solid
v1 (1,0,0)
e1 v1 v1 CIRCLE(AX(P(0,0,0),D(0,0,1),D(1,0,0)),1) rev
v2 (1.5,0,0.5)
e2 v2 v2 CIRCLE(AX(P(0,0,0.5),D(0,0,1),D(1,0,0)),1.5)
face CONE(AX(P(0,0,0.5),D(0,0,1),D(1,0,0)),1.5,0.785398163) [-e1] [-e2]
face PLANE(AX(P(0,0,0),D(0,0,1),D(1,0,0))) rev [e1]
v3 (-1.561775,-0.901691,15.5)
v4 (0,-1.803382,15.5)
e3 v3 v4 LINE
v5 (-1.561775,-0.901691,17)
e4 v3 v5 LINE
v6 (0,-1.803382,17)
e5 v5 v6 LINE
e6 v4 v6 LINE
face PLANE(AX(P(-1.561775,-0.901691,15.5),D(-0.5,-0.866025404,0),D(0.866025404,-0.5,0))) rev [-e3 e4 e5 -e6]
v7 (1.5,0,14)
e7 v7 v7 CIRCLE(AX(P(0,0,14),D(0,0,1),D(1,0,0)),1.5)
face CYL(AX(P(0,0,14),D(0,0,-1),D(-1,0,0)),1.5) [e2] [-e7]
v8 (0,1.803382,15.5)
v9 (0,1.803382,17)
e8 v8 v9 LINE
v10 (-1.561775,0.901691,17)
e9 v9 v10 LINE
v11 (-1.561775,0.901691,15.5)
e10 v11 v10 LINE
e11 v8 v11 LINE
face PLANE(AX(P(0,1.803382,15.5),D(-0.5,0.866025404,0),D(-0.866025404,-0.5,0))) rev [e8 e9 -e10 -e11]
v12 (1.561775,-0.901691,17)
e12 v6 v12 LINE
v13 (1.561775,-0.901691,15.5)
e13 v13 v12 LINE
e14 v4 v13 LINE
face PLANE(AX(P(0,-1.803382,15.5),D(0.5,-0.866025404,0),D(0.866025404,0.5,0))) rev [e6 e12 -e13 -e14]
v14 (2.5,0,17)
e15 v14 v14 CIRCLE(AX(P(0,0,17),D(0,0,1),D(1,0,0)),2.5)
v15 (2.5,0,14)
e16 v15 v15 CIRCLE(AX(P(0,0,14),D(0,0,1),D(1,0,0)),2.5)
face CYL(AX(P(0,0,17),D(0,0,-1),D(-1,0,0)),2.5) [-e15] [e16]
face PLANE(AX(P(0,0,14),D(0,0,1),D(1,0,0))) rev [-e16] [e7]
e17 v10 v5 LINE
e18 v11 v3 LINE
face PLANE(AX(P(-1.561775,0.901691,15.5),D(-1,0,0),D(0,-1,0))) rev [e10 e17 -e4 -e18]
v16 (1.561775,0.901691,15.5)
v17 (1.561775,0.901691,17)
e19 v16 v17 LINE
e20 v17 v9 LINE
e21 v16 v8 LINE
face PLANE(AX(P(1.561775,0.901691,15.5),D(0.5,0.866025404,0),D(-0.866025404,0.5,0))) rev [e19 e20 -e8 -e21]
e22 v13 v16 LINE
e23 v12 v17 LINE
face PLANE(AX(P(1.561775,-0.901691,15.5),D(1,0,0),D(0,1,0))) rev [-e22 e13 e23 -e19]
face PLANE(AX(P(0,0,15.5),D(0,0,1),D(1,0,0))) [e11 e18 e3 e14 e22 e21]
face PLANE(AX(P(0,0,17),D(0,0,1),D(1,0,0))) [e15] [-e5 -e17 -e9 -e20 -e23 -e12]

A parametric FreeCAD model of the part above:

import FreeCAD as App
import Part
import Sketcher
from FreeCAD import Vector
Q = App.Units.Quantity


def edges_at(feature, points):
    """Names of the edges that pass closest to the given points."""
    edges = feature.Shape.Edges
    near = lambda p: min(range(len(edges)), key=lambda i: edges[i].distToShape(Part.Vertex(*p))[0])
    return sorted({f"Edge{near(p) + 1}" for p in points})


def add_polygon(sketch, points):
    """Adds a closed chain of lines whose ends are joined by coincident constraints."""
    first, n = sketch.GeometryCount, len(points)
    for a, b in zip(points, points[1:] + points[:1]):
        sketch.addGeometry(Part.LineSegment(App.Vector(*a, 0), App.Vector(*b, 0)), False)
    for i in range(n):
        sketch.addConstraint(Sketcher.Constraint("Coincident", first + i, 2, first + (i + 1) % n, 1))

doc = App.newDocument("Part")
body = doc.addObject("PartDesign::Body", "Body")

sketch1 = body.newObject("Sketcher::SketchObject", "Sketch")
sketch1.AttachmentSupport = (doc.getObject("XY_Plane"), [""])
sketch1.MapMode = "FlatFace"
sketch1.addGeometry(Part.Circle(Vector(0, 0, 0), Vector(0, 0, 1), 1.5), False)
sketch1.addConstraint([
    Sketcher.Constraint("Coincident", 0, 3, -1, 1),
    Sketcher.Constraint("Diameter", 0, Q("3 mm")),
])
pad1 = body.newObject("PartDesign::Pad", "Pad")
pad1.Profile = sketch1
pad1.Length = 14

sketch2 = body.newObject("Sketcher::SketchObject", "Sketch001")
sketch2.AttachmentSupport = (doc.getObject("XY_Plane"), [""])
sketch2.MapMode = "FlatFace"
sketch2.AttachmentOffset = App.Placement(Vector(0, 0, 14), App.Rotation())
sketch2.addGeometry(Part.Circle(Vector(0, 0, 0), Vector(0, 0, 1), 2.5), False)
sketch2.addConstraint([
    Sketcher.Constraint("Coincident", 0, 3, -1, 1),
    Sketcher.Constraint("Diameter", 0, Q("5 mm")),
])
pad2 = body.newObject("PartDesign::Pad", "Pad001")
pad2.Profile = sketch2
pad2.Length = 3

sketch3 = body.newObject("Sketcher::SketchObject", "Sketch002")
sketch3.AttachmentSupport = (doc.getObject("XY_Plane"), [""])
sketch3.MapMode = "FlatFace"
sketch3.AttachmentOffset = App.Placement(Vector(0, 0, 17), App.Rotation())
add_polygon(sketch3, [(0, 1.8), (-1.6, 0.9), (-1.6, -0.9), (0, -1.8), (1.6, -0.9), (1.6, 0.9)])
sketch3.addConstraint([
    Sketcher.Constraint("Vertical", 1),
    Sketcher.Constraint("Vertical", 4),
    Sketcher.Constraint("Symmetric", 0, 2, 3, 2, -1, 1),
    Sketcher.Constraint("Symmetric", 2, 2, 5, 2, -1, 1),
    Sketcher.Constraint("PointOnObject", 2, 2, -2),
    Sketcher.Constraint("Parallel", 2, 5),
    Sketcher.Constraint("Horizontal", 1, 2, 3, 2),
    Sketcher.Constraint("Angle", 0, Q("-150 deg")),
    Sketcher.Constraint("DistanceY", 1, 2, 1, 1, Q("1.803382 mm")),
    Sketcher.Constraint("DistanceY", 2, 2, 1, 2, Q("0.901691 mm")),
])
pocket1 = body.newObject("PartDesign::Pocket", "Pocket")
pocket1.Profile = sketch3
pocket1.Length = 1.5
doc.recompute()

chamfer = body.newObject("PartDesign::Chamfer", "Chamfer")
chamfer.Base = (pocket1, edges_at(pocket1, [(-1.5, 0, 0)]))
chamfer.Size = 0.5

doc.recompute()
